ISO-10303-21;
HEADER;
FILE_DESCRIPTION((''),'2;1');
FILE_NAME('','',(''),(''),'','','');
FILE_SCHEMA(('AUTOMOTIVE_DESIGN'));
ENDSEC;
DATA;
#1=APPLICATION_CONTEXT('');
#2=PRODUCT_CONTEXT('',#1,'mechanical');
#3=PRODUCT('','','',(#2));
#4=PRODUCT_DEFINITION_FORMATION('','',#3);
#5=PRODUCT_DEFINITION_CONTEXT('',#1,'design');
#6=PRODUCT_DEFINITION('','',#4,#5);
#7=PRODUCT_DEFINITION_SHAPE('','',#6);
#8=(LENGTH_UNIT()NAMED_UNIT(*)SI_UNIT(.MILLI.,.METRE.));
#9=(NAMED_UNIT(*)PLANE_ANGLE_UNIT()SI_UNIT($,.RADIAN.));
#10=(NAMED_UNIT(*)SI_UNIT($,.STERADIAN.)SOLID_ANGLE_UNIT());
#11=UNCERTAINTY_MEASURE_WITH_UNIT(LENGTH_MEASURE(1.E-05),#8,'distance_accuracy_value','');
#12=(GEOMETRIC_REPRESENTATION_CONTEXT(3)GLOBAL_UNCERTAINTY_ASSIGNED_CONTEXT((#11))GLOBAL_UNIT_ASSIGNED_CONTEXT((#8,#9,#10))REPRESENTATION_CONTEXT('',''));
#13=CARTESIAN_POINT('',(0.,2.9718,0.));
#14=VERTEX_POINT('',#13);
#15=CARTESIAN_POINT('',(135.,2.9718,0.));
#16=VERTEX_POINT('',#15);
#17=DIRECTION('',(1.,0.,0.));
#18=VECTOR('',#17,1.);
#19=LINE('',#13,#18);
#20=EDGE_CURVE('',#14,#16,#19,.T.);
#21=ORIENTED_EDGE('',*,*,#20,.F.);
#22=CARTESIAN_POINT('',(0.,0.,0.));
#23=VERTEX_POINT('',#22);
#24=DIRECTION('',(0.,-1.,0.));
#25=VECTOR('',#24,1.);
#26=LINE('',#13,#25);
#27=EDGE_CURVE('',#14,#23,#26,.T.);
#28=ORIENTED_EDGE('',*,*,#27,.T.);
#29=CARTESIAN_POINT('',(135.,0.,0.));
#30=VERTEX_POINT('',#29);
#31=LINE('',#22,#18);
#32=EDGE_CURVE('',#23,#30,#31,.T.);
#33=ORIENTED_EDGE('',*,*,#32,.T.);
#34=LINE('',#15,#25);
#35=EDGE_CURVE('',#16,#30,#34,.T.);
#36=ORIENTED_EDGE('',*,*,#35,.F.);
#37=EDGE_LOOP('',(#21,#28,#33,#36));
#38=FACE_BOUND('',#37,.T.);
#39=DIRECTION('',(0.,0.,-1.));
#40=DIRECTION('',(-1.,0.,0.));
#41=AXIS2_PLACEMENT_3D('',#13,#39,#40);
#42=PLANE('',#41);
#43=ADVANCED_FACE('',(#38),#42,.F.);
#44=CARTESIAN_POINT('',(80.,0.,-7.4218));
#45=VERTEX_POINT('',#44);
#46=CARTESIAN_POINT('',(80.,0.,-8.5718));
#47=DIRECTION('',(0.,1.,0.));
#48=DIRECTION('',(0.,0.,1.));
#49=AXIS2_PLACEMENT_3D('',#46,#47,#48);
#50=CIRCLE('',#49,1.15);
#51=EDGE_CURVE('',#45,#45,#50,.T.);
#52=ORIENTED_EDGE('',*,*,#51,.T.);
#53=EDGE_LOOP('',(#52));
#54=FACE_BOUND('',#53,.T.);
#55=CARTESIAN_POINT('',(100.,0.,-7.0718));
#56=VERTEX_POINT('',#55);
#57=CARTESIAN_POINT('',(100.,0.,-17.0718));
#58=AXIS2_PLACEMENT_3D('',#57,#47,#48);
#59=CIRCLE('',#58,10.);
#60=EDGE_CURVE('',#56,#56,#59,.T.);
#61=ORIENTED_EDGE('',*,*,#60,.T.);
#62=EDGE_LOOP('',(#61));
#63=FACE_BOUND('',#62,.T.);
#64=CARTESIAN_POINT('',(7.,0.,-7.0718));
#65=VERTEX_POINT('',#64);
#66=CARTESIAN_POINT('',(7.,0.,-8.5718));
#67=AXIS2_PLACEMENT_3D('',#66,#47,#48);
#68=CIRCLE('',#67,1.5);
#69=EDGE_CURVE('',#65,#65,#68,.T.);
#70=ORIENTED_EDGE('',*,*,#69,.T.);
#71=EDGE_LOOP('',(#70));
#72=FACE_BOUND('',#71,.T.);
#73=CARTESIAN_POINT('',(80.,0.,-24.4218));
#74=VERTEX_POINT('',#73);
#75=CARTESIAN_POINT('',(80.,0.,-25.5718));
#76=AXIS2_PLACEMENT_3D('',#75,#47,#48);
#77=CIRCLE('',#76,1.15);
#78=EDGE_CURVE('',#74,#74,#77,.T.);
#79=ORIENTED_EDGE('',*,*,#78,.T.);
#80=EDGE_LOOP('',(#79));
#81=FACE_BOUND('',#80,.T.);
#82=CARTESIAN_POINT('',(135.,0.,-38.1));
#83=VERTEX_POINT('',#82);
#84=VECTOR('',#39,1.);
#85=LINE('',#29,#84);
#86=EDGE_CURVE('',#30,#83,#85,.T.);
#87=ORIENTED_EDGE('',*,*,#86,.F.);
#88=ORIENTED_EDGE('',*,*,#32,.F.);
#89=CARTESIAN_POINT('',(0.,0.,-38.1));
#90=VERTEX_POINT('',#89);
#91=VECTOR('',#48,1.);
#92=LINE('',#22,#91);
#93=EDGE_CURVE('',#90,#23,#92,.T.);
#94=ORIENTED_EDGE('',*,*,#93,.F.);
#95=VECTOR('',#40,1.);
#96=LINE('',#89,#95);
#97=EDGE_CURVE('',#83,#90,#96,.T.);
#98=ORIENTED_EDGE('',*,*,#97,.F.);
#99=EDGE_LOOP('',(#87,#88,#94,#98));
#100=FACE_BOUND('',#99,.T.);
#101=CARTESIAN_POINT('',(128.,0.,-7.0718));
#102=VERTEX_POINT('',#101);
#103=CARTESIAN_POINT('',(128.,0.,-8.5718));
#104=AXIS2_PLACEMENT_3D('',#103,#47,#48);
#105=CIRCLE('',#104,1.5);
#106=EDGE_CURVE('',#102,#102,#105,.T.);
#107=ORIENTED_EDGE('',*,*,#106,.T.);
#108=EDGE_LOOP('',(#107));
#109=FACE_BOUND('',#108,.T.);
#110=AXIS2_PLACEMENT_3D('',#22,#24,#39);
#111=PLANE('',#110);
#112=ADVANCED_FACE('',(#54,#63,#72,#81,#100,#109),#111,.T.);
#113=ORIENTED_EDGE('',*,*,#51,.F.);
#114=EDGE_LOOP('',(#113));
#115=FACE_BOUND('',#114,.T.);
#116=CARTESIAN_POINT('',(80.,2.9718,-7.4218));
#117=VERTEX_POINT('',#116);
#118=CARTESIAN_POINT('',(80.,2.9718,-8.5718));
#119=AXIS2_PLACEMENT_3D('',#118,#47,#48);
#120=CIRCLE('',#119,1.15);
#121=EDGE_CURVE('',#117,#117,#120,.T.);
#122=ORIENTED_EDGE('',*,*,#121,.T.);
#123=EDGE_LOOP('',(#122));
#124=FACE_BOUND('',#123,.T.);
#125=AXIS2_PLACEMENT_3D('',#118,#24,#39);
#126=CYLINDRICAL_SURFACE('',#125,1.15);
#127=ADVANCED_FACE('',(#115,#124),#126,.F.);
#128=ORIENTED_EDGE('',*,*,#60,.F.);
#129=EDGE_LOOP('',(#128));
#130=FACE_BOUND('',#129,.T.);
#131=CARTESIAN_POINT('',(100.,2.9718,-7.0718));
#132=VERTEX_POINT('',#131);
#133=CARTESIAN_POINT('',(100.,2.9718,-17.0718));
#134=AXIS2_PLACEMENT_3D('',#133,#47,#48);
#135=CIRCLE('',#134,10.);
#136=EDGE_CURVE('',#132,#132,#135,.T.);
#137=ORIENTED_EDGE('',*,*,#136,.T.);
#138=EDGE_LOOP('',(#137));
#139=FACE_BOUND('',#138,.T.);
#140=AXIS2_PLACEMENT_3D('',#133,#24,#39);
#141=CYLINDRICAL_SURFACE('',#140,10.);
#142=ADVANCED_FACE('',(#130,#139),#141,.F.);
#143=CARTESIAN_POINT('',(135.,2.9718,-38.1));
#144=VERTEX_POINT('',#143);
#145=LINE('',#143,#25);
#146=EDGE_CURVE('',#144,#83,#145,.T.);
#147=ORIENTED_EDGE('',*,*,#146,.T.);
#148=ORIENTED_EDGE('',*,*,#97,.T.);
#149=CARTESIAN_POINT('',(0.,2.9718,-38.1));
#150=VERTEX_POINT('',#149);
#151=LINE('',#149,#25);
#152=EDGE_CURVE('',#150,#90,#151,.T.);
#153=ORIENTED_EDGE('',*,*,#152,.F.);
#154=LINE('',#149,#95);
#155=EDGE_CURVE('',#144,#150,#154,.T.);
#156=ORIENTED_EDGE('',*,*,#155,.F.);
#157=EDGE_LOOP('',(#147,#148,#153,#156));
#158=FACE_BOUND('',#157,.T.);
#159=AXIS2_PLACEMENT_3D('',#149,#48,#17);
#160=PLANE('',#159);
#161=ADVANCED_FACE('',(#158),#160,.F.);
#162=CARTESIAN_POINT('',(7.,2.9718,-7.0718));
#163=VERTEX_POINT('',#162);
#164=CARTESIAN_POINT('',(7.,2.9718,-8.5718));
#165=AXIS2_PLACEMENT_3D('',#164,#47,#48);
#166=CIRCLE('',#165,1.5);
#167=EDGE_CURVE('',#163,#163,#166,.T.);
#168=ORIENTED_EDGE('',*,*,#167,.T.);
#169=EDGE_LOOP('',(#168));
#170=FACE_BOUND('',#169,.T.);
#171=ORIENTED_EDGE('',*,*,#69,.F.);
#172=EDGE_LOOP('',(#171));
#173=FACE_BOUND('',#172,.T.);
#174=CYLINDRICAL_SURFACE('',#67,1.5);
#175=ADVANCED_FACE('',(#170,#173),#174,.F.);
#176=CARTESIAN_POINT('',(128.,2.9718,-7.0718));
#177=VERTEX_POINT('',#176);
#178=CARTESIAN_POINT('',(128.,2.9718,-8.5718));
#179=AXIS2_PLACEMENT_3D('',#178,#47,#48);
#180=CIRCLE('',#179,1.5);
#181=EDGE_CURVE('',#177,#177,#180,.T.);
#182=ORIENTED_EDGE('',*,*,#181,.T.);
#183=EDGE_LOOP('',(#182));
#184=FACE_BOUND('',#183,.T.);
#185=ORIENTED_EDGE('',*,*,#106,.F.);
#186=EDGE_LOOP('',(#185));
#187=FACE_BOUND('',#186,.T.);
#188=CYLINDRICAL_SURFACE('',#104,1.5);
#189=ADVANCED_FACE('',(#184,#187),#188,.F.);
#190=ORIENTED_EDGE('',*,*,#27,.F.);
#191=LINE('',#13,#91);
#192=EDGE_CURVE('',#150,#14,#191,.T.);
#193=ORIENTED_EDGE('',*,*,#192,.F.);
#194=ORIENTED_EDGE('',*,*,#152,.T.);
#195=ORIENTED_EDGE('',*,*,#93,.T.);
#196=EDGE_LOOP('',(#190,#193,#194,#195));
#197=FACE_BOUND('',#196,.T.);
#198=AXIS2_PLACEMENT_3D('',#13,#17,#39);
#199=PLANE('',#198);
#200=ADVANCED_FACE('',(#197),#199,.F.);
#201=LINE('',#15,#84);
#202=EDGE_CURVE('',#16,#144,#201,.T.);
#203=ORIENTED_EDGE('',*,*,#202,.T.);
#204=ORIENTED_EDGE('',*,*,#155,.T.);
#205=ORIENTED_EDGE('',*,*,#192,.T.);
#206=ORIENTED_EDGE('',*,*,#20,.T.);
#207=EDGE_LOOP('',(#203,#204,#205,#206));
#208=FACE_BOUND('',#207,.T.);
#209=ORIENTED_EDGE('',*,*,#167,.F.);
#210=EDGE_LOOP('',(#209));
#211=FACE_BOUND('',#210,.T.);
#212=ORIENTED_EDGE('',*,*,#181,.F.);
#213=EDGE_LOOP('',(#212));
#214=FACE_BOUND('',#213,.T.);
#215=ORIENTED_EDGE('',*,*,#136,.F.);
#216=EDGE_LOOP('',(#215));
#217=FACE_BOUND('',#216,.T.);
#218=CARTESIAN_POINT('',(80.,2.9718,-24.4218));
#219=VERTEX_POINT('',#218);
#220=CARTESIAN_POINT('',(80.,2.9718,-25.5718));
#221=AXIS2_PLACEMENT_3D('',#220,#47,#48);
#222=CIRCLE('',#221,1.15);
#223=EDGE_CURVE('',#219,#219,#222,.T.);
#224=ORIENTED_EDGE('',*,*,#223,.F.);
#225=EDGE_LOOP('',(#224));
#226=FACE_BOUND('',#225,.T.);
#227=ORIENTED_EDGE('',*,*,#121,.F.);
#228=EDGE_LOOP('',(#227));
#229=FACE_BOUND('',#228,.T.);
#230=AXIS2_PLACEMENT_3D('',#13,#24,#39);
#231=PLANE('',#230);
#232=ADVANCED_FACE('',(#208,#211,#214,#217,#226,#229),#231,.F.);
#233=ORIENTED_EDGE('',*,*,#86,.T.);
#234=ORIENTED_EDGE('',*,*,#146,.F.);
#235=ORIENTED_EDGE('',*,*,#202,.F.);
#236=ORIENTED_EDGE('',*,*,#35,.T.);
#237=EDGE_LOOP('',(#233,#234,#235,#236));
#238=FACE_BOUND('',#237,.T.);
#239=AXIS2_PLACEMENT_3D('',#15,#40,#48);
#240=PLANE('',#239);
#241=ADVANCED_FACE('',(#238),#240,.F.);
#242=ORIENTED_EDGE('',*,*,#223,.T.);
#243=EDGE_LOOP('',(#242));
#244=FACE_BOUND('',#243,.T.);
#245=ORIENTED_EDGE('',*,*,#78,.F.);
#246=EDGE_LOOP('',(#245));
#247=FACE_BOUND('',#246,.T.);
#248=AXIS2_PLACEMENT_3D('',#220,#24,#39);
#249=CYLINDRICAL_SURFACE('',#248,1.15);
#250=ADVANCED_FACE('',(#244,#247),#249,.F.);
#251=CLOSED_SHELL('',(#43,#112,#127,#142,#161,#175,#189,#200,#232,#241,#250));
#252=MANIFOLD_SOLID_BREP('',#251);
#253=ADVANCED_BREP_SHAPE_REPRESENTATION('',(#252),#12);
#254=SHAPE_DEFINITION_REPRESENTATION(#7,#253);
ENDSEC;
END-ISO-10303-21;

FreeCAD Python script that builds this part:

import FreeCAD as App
import Part
import Sketcher
from FreeCAD import Vector

doc = App.newDocument("Part")
body = doc.addObject("PartDesign::Body", "Body")

# Sketch on XZ plane
sketch1 = doc.addObject("Sketcher::SketchObject", "Sketch")
body.addObject(sketch1)
sketch1.AttachmentSupport = (doc.XZ_Plane, [""])
sketch1.MapMode = "FlatFace"
sketch1.addGeometry([
    Part.LineSegment(Vector(0, -38.1, 0), Vector(0, 0, 0)),  # 0
    Part.LineSegment(Vector(0, 0, 0), Vector(135, 0, 0)),  # 1
    Part.LineSegment(Vector(135, 0, 0), Vector(135, -38.1, 0)),  # 2
    Part.LineSegment(Vector(135, -38.1, 0), Vector(0, -38.1, 0)),  # 3
    Part.Circle(Vector(80, -8.6, 0), Vector(0, 0, 1), 1.1),  # 4
    Part.Circle(Vector(80, -25.6, 0), Vector(0, 0, 1), 1.1),  # 5
    Part.Circle(Vector(100, -17.1, 0), Vector(0, 0, 1), 10),  # 6
], False)
sketch1.addConstraint([
    Sketcher.Constraint("Coincident", 0, 2, 1, 1),
    Sketcher.Constraint("Coincident", 1, 2, 2, 1),
    Sketcher.Constraint("Coincident", 2, 2, 3, 1),
    Sketcher.Constraint("Coincident", 3, 2, 0, 1),
    Sketcher.Constraint("Vertical", 0),
    Sketcher.Constraint("Horizontal", 1),
    Sketcher.Constraint("Vertical", 2),
    Sketcher.Constraint("Horizontal", 3),
    Sketcher.Constraint("Coincident", 0, 2, -1, 1),
    Sketcher.Constraint("Equal", 4, 5),
    Sketcher.Constraint("Vertical", 4, 3, 5, 3),
    Sketcher.Constraint("Diameter", 6, 20.0),
    Sketcher.Constraint("Diameter", 4, 2.3),
    Sketcher.Constraint("DistanceX", 1, 1, 1, 2, 135.0),
    Sketcher.Constraint("DistanceY", 0, 1, 0, 2, 38.1),
    Sketcher.Constraint("DistanceX", -1, 1, 4, 3, 80.0),
    Sketcher.Constraint("DistanceX", -1, 1, 6, 3, 100.0),
    Sketcher.Constraint("DistanceY", 5, 3, 4, 3, 17.0),
    Sketcher.Constraint("DistanceY", 6, 3, 4, 3, 8.5),
    Sketcher.Constraint("DistanceY", 4, 3, -1, 1, 8.5718),
])
pad1 = doc.addObject("PartDesign::Pad", "Pad")
body.addObject(pad1)
pad1.Profile = sketch1
pad1.Length = 2.9718
pad1.Reversed = True

# Sketch on XZ plane
sketch2 = doc.addObject("Sketcher::SketchObject", "Sketch001")
body.addObject(sketch2)
sketch2.AttachmentSupport = (doc.XZ_Plane, [""])
sketch2.MapMode = "FlatFace"
sketch2.AttachmentOffset = App.Placement(Vector(0, 0, -2.9718), App.Rotation())
sketch2.addGeometry([
    Part.Circle(Vector(128, -8.6, 0), Vector(0, 0, 1), 1.5),
    Part.Circle(Vector(7, -8.6, 0), Vector(0, 0, 1), 1.5),
], False)
sketch2.addConstraint([
    Sketcher.Constraint("Equal", 0, 1),
    Sketcher.Constraint("Horizontal", 0, 3, 1, 3),
    Sketcher.Constraint("Diameter", 0, 3.0),
    Sketcher.Constraint("DistanceX", -1, 1, 0, 3, 128.0),
    Sketcher.Constraint("DistanceX", -1, 1, 1, 3, 7.0),
    Sketcher.Constraint("DistanceY", 0, 3, -1, 1, 8.5718),
])
pocket1 = doc.addObject("PartDesign::Pocket", "Pocket")
body.addObject(pocket1)
pocket1.Profile = sketch2
pocket1.Type = "ThroughAll"
pocket1.Reversed = True

doc.recompute()
